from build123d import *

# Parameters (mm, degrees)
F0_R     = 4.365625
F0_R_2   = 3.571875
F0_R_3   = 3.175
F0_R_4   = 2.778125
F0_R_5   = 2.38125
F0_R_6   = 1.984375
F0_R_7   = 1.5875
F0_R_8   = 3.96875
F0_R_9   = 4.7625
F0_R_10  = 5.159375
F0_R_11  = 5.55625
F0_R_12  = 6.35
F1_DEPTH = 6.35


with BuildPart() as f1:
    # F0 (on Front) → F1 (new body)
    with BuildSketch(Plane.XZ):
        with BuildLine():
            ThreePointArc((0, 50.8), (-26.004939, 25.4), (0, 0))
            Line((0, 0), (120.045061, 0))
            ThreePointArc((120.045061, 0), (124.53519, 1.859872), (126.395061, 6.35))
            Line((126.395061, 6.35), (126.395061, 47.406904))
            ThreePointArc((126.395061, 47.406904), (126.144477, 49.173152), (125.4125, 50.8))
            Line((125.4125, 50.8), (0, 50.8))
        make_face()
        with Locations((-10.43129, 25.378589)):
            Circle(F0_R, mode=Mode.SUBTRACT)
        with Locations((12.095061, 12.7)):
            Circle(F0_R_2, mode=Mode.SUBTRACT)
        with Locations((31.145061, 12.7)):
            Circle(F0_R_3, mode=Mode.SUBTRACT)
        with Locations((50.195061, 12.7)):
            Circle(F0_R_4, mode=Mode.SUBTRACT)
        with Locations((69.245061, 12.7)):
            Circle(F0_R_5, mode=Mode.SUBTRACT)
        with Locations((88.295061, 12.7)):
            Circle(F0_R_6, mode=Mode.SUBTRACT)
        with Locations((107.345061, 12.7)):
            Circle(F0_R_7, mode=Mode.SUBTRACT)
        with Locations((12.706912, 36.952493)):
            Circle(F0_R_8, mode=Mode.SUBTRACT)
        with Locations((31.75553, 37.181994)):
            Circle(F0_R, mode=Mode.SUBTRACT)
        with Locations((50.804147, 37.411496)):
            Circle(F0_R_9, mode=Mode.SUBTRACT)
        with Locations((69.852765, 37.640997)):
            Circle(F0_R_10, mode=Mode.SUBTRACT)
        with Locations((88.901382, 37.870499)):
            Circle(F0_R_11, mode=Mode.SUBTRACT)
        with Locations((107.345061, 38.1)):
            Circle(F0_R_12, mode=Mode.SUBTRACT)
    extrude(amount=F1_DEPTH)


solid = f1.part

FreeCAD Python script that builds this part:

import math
import FreeCAD as App
import Part
import Sketcher
from FreeCAD import Vector
Q = App.Units.Quantity

doc = App.newDocument("Part")
body = doc.addObject("PartDesign::Body", "Body")

sketch1 = doc.addObject("Sketcher::SketchObject", "Sketch")
body.addObject(sketch1)
sketch1.AttachmentSupport = (doc.XZ_Plane, [""])
sketch1.MapMode = "FlatFace"
sketch1.addGeometry(Part.ArcOfCircle(Part.Circle(Vector(-0.597903, 25.4, 0), Vector(0, 0, 1), 25.407036), math.radians(88.651536), math.radians(271.348464)), False)
sketch1.addGeometry(Part.LineSegment(Vector(0, 0, 0), Vector(120.045061, 0, 0)), False)
sketch1.addGeometry(Part.ArcOfCircle(Part.Circle(Vector(120.045063, 6.349998, 0), Vector(0, 0, 1), 6.349998), math.radians(-90.000014), math.radians(0.000014)), False)
sketch1.addGeometry(Part.LineSegment(Vector(126.395061, 6.35, 0), Vector(126.395061, 47.406904, 0)), False)
sketch1.addGeometry(Part.ArcOfCircle(Part.Circle(Vector(120.045074, 47.406908, 0), Vector(0, 0, 1), 6.349987), math.radians(-0.000035), math.radians(32.299588)), False)
sketch1.addGeometry(Part.LineSegment(Vector(125.4125, 50.8, 0), Vector(0, 50.8, 0)), False)
sketch1.addGeometry(Part.Circle(Vector(12.095061, 12.7, 0), Vector(0, 0, 1), 3.571875), False)
sketch1.addGeometry(Part.Circle(Vector(31.145061, 12.7, 0), Vector(0, 0, 1), 3.175), False)
sketch1.addGeometry(Part.Circle(Vector(-10.43129, 25.378589, 0), Vector(0, 0, 1), 4.365625), False)
sketch1.addGeometry(Part.Circle(Vector(50.195061, 12.7, 0), Vector(0, 0, 1), 2.778125), False)
sketch1.addGeometry(Part.Circle(Vector(69.245061, 12.7, 0), Vector(0, 0, 1), 2.38125), False)
sketch1.addGeometry(Part.Circle(Vector(88.295061, 12.7, 0), Vector(0, 0, 1), 1.984375), False)
sketch1.addGeometry(Part.Circle(Vector(107.345061, 12.7, 0), Vector(0, 0, 1), 1.5875), False)
sketch1.addGeometry(Part.Circle(Vector(12.706912, 36.952493, 0), Vector(0, 0, 1), 3.96875), False)
sketch1.addGeometry(Part.Circle(Vector(31.75553, 37.181994, 0), Vector(0, 0, 1), 4.365625), False)
sketch1.addGeometry(Part.Circle(Vector(50.804147, 37.411496, 0), Vector(0, 0, 1), 4.7625), False)
sketch1.addGeometry(Part.Circle(Vector(69.852765, 37.640997, 0), Vector(0, 0, 1), 5.159375), False)
sketch1.addGeometry(Part.Circle(Vector(88.901382, 37.870499, 0), Vector(0, 0, 1), 5.55625), False)
sketch1.addGeometry(Part.Circle(Vector(107.345061, 38.1, 0), Vector(0, 0, 1), 6.35), False)
sketch1.addConstraint(Sketcher.Constraint("Coincident", 0, 2, 1, 1))
sketch1.addConstraint(Sketcher.Constraint("Tangent", 1, 2, 2, 1))
sketch1.addConstraint(Sketcher.Constraint("Tangent", 2, 2, 3, 1))
sketch1.addConstraint(Sketcher.Constraint("Tangent", 3, 2, 4, 1))
sketch1.addConstraint(Sketcher.Constraint("Coincident", 4, 2, 5, 1))
sketch1.addConstraint(Sketcher.Constraint("Coincident", 5, 2, 0, 1))
sketch1.addConstraint(Sketcher.Constraint("Horizontal", 1))
sketch1.addConstraint(Sketcher.Constraint("Vertical", 3))
sketch1.addConstraint(Sketcher.Constraint("Horizontal", 5))
sketch1.addConstraint(Sketcher.Constraint("Coincident", 0, 2, -1, 1))
sketch1.addConstraint(Sketcher.Constraint("Equal", 8, 14))
sketch1.addConstraint(Sketcher.Constraint("Equal", 2, 18))
sketch1.addConstraint(Sketcher.Constraint("PointOnObject", 5, 2, -2))
sketch1.addConstraint(Sketcher.Constraint("Horizontal", 6, 3, 7, 3))
sketch1.addConstraint(Sketcher.Constraint("Horizontal", 7, 3, 9, 3))
sketch1.addConstraint(Sketcher.Constraint("Horizontal", 9, 3, 10, 3))
sketch1.addConstraint(Sketcher.Constraint("Horizontal", 10, 3, 11, 3))
sketch1.addConstraint(Sketcher.Constraint("Horizontal", 11, 3, 12, 3))
sketch1.addConstraint(Sketcher.Constraint("Vertical", 12, 3, 18, 3))
sketch1.addConstraint(Sketcher.Constraint("Diameter", 18, Q("0.5 in")))
sketch1.addConstraint(Sketcher.Constraint("Diameter", 7, Q("0.25 in")))
sketch1.addConstraint(Sketcher.Constraint("Diameter", 6, Q("0.28125 in")))
sketch1.addConstraint(Sketcher.Constraint("Diameter", 8, Q("0.34375 in")))
sketch1.addConstraint(Sketcher.Constraint("Diameter", 9, Q("0.21875 in")))
sketch1.addConstraint(Sketcher.Constraint("Diameter", 10, Q("0.1875 in")))
sketch1.addConstraint(Sketcher.Constraint("Diameter", 11, Q("0.15625 in")))
sketch1.addConstraint(Sketcher.Constraint("Diameter", 12, Q("0.125 in")))
sketch1.addConstraint(Sketcher.Constraint("Diameter", 13, Q("0.3125 in")))
sketch1.addConstraint(Sketcher.Constraint("Diameter", 15, Q("0.375 in")))
sketch1.addConstraint(Sketcher.Constraint("Diameter", 16, Q("0.40625 in")))
sketch1.addConstraint(Sketcher.Constraint("Diameter", 17, Q("0.4375 in")))
sketch1.addConstraint(Sketcher.Constraint("DistanceY", -1, 1, 0, 3, Q("1 in")))
sketch1.addConstraint(Sketcher.Constraint("DistanceX", 10, 3, 2, 3, Q("2.0000001 in")))
sketch1.addConstraint(Sketcher.Constraint("DistanceY", 12, 3, 18, 3, Q("1 in")))
sketch1.addConstraint(Sketcher.Constraint("DistanceY", -1, 1, 6, 3, Q("0.5 in")))
sketch1.addConstraint(Sketcher.Constraint("DistanceX", 7, 3, 2, 3, Q("3.5000001 in")))
sketch1.addConstraint(Sketcher.Constraint("DistanceX", 6, 3, 9, 3, Q("1.5 in")))
sketch1.addConstraint(Sketcher.Constraint("DistanceX", 9, 3, 11, 3, Q("1.5 in")))
sketch1.addConstraint(Sketcher.Constraint("DistanceX", 12, 3, 2, 3, Q("0.5000001 in")))
sketch1.addConstraint(Sketcher.Constraint("DistanceX", 11, 3, 2, 2, Q("1.5 in")))
sketch1.addConstraint(Sketcher.Constraint("DistanceX", 5, 2, 5, 1, Q("4.9375 in")))
sketch1.addConstraint(Sketcher.Constraint("Radius", 0, 25.407036))
sketch1.addConstraint(Sketcher.Constraint("Radius", 4, 6.349987))
sketch1.addConstraint(Sketcher.Constraint("DistanceX", 1, 1, 1, 2, 120.045061))
sketch1.addConstraint(Sketcher.Constraint("DistanceY", -1, 1, 17, 3, 37.870499))
sketch1.addConstraint(Sketcher.Constraint("DistanceX", 8, 3, 13, 3, 23.138202))
sketch1.addConstraint(Sketcher.Constraint("DistanceY", 13, 3, 14, 3, 0.229501))
sketch1.addConstraint(Sketcher.Constraint("DistanceY", 14, 3, 15, 3, 0.229502))
sketch1.addConstraint(Sketcher.Constraint("DistanceY", 15, 3, 16, 3, 0.229501))
sketch1.addConstraint(Sketcher.Constraint("DistanceX", 8, 3, -1, 1, 10.43129))
sketch1.addConstraint(Sketcher.Constraint("DistanceY", -1, 1, 8, 3, 25.378589))
sketch1.addConstraint(Sketcher.Constraint("DistanceX", -1, 1, 14, 3, 31.75553))
sketch1.addConstraint(Sketcher.Constraint("DistanceX", -1, 1, 17, 3, 88.901382))
sketch1.addConstraint(Sketcher.Constraint("DistanceX", 15, 3, 16, 3, 19.048618))
sketch1.addConstraint(Sketcher.Constraint("DistanceY", -1, 1, 13, 3, 36.952493))
sketch1.addConstraint(Sketcher.Constraint("DistanceX", -1, 1, 15, 3, 50.804147))
pad1 = doc.addObject("PartDesign::Pad", "Pad")
body.addObject(pad1)
pad1.Profile = sketch1
pad1.Length = Q("0.25 in")

doc.recompute()
